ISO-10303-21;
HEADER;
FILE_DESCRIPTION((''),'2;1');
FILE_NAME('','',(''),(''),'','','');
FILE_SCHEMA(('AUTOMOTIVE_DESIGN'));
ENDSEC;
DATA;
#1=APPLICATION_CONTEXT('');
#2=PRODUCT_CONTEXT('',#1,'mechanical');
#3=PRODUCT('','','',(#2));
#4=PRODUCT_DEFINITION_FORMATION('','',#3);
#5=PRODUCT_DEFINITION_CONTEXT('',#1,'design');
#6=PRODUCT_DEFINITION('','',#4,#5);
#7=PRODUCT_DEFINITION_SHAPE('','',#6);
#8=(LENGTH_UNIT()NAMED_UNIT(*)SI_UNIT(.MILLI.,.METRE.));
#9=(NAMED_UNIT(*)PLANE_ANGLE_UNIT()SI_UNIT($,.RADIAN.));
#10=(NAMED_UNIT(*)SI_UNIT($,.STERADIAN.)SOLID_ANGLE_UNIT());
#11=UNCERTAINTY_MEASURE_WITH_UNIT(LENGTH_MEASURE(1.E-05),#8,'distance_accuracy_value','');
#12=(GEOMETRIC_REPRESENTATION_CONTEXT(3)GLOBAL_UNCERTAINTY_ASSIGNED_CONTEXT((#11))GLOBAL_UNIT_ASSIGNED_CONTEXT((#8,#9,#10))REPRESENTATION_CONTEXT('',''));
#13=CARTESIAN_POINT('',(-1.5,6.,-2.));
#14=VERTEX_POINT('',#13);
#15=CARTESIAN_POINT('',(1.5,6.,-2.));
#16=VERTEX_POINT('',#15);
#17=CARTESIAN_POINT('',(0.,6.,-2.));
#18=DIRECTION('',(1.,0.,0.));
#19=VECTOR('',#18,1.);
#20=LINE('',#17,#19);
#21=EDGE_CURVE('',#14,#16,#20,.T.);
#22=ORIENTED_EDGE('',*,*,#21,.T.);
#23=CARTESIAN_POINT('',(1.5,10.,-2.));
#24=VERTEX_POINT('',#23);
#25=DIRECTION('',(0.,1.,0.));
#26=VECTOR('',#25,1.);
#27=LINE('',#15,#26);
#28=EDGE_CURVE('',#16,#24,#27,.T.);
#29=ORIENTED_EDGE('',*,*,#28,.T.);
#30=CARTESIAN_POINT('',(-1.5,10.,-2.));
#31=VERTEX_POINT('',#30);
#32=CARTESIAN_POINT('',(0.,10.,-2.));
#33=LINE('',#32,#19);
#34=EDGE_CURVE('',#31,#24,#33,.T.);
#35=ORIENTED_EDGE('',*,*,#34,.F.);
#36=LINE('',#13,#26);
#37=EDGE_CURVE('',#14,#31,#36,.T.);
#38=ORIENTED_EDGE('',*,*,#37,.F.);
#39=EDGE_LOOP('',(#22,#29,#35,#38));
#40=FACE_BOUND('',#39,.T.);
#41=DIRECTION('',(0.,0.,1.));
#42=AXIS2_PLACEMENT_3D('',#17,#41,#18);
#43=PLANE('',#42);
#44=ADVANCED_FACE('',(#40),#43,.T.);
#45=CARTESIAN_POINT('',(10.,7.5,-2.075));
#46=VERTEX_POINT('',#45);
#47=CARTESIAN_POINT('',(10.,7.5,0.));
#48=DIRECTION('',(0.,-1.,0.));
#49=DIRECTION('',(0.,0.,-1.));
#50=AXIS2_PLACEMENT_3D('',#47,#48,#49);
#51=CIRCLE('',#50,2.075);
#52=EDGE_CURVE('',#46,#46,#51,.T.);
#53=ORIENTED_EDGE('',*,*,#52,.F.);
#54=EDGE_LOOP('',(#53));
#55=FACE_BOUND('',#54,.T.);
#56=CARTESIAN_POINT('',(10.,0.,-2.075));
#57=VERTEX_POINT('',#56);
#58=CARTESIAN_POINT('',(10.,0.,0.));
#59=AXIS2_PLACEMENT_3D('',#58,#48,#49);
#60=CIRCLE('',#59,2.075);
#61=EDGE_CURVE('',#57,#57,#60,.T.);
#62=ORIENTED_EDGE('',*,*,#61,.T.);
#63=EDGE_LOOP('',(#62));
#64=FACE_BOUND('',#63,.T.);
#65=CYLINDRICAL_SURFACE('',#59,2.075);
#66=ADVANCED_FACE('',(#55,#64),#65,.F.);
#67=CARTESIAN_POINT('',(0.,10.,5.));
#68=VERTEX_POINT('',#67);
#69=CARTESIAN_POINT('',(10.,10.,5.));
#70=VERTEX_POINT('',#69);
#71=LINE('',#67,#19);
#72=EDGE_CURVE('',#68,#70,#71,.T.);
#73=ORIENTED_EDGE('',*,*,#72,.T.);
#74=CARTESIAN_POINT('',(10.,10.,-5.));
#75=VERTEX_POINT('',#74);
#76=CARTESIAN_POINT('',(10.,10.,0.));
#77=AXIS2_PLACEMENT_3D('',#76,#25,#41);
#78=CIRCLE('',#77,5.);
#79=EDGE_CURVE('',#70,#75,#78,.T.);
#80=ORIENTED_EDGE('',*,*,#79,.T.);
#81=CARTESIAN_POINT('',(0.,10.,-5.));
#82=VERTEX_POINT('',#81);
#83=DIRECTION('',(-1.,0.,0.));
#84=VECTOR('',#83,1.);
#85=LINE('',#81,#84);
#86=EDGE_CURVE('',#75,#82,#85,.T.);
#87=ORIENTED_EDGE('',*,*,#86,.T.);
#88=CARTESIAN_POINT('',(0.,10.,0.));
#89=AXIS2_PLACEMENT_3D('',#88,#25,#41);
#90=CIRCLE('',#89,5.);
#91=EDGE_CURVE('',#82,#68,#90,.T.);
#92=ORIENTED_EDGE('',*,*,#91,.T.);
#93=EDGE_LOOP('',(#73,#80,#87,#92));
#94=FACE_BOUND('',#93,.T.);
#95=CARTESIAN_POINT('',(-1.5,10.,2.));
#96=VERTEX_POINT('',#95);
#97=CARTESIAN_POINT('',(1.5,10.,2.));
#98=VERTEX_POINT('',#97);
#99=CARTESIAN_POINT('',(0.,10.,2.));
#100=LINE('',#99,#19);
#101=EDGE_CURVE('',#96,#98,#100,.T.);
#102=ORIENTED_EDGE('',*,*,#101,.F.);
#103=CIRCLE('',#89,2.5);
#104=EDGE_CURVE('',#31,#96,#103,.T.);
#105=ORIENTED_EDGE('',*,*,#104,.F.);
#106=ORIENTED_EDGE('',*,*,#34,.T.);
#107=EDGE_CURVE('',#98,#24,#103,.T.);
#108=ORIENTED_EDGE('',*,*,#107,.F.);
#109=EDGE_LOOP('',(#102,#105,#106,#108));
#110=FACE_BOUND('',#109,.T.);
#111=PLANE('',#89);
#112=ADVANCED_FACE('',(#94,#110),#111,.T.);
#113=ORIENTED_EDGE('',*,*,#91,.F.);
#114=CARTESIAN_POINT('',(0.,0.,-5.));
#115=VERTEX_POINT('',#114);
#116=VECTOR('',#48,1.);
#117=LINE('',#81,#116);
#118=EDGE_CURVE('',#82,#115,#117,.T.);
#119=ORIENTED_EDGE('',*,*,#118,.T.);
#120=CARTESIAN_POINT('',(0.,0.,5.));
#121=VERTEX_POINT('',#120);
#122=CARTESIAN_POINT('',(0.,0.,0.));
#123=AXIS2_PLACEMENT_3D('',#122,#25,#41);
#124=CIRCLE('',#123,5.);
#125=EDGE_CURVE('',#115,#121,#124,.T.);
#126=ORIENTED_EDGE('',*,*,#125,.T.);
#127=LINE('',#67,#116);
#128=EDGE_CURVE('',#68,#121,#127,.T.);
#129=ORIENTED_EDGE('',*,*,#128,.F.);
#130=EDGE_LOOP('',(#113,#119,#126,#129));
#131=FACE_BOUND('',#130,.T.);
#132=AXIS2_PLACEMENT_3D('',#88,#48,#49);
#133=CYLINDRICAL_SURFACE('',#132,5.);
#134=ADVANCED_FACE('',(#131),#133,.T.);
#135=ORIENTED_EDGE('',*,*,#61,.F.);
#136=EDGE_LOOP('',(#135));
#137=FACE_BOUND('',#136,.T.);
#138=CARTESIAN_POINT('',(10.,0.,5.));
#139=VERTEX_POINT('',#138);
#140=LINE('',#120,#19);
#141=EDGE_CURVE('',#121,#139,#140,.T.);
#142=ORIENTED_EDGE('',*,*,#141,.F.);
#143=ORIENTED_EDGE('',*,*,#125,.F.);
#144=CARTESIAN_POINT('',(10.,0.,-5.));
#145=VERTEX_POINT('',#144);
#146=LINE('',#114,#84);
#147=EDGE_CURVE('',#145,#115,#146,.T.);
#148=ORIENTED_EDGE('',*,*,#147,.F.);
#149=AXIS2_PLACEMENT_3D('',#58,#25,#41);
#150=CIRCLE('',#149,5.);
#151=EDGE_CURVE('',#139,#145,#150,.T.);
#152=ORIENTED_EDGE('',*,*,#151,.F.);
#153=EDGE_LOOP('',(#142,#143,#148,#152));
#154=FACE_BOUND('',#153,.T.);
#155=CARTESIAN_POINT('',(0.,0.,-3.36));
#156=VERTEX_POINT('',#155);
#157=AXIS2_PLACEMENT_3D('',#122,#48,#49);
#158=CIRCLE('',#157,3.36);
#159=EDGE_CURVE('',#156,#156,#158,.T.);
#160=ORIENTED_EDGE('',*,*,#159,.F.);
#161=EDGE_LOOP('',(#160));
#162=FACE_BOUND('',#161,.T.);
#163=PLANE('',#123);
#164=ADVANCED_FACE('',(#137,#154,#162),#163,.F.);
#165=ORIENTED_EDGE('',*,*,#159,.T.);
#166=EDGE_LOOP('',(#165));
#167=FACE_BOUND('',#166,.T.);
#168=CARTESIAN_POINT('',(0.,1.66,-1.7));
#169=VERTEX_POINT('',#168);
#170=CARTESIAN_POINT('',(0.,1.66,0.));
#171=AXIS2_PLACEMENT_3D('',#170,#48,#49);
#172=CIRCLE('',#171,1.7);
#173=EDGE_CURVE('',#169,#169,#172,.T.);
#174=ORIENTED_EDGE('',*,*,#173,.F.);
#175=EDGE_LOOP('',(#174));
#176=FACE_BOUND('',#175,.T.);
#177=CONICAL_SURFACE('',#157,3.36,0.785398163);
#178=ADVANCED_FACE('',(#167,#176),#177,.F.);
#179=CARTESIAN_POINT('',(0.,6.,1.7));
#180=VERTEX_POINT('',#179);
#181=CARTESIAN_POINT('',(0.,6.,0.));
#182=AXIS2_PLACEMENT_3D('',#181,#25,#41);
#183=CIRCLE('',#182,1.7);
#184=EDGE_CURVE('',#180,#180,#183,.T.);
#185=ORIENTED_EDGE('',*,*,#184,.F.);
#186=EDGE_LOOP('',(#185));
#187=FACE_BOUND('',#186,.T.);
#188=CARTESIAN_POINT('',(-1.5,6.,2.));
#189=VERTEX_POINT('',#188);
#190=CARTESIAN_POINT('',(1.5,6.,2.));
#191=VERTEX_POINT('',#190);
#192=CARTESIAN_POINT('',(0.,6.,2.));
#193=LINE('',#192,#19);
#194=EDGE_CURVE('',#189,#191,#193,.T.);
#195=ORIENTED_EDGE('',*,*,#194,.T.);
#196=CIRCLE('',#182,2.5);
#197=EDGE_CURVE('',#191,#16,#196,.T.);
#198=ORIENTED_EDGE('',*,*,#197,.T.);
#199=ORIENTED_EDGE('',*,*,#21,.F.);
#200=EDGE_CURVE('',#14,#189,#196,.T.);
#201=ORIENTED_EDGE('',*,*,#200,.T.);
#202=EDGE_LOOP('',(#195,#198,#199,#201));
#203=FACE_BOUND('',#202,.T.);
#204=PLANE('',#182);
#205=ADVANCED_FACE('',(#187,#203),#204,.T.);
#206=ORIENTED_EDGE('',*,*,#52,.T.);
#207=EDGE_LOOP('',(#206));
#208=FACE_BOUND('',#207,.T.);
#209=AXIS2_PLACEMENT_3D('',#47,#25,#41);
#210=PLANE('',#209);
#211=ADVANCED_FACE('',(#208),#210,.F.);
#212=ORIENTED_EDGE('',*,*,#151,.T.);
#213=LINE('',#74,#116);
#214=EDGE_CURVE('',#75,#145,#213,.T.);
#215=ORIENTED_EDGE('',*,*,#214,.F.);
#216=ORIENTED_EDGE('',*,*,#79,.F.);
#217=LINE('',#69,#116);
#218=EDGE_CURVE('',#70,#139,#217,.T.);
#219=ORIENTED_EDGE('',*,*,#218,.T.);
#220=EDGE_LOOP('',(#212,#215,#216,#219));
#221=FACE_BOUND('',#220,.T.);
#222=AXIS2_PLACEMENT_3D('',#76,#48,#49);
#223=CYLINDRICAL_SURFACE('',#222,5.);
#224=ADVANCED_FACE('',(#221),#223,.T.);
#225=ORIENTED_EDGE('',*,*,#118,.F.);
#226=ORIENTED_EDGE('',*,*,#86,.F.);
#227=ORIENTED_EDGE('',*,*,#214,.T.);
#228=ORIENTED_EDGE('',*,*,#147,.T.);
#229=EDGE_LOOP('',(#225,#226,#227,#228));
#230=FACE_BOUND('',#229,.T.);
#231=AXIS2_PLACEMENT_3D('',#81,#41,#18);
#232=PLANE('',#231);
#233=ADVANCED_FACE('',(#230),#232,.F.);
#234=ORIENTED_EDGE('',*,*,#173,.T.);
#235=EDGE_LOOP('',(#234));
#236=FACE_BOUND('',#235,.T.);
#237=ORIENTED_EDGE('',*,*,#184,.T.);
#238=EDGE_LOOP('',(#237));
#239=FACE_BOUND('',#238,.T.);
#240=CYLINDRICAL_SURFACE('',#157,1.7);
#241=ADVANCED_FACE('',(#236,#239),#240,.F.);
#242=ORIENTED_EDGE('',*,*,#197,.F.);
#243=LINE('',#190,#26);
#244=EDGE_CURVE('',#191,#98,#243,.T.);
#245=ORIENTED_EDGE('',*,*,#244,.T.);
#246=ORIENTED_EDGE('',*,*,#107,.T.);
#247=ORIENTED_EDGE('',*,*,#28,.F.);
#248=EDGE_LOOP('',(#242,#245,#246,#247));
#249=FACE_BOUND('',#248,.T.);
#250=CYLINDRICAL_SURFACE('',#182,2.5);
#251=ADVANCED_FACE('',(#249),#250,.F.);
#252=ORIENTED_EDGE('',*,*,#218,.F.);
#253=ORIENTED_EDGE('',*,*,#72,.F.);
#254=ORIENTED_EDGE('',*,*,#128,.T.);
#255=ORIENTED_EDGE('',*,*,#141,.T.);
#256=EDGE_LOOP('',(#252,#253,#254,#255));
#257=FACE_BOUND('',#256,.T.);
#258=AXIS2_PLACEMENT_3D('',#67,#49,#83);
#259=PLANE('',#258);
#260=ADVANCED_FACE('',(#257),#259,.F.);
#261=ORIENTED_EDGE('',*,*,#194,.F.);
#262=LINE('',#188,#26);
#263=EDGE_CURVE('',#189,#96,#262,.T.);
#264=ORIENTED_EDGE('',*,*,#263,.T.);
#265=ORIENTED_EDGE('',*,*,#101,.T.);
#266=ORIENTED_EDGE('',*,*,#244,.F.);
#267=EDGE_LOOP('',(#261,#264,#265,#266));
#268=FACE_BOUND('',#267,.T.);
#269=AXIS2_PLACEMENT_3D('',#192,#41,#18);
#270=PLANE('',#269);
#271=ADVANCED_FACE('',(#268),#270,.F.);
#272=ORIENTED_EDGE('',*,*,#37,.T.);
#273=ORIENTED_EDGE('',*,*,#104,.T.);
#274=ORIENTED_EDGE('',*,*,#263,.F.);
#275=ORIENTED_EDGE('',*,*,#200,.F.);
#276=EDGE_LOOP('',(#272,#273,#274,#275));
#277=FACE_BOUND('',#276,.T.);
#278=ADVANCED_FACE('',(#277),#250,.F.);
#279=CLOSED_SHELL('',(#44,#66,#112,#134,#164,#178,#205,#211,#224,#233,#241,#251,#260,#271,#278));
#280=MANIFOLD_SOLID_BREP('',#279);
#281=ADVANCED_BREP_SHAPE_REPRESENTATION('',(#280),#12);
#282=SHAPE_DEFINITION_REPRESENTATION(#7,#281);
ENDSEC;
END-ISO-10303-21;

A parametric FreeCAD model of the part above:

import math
import FreeCAD as App
import Part
import Sketcher
from FreeCAD import Vector

doc = App.newDocument("Part")
params = doc.addObject("Spreadsheet::Sheet", "Params")
for row, (alias, value) in enumerate([
    ("sketch1_radius", "5 mm"),
    ("sketch1_width", "10 mm"),
    ("pad1_length", "10 mm"),
    ("sketch2_radius", "2.5 mm"),
    ("sketch2_width", "3 mm"),
    ("pocket1_length", "4 mm"),
    ("sketch3_diameter", "3.4 mm"),
    ("hole_diameter", "3.4 mm"),
    ("hole_depth", "8.1 mm"),
    ("hole_csink_diameter", "6.72 mm"),
    ("sketch4_diameter", "4.15 mm"),
    ("hole2_diameter", "4.15 mm"),
    ("hole2_depth", "7.5 mm"),
], start=1):
    params.set(f"A{row}", alias)
    params.set(f"B{row}", "=" + value)
    params.setAlias(f"B{row}", alias)

body = doc.addObject("PartDesign::Body", "Body")

# Sketch on XZ plane
sketch1 = body.newObject("Sketcher::SketchObject", "Sketch")
sketch1.AttachmentSupport = (doc.getObject("XZ_Plane"), [""])
sketch1.MapMode = "FlatFace"
sketch1.addGeometry([
    Part.LineSegment(Vector(10, -5, 0), Vector(0, -5, 0)),
    Part.ArcOfCircle(Part.Circle(Vector(0, 0, 0), Vector(0, 0, 1), 5), math.radians(90), math.radians(270)),
    Part.LineSegment(Vector(0, 5, 0), Vector(10, 5, 0)),
    Part.ArcOfCircle(Part.Circle(Vector(10, 0, 0), Vector(0, 0, 1), 5), math.radians(-90), math.radians(90)),
], False)
sketch1.addConstraint([
    Sketcher.Constraint("Tangent", 0, 2, 1, 2),
    Sketcher.Constraint("Tangent", 1, 1, 2, 1),
    Sketcher.Constraint("Tangent", 2, 2, 3, 2),
    Sketcher.Constraint("Tangent", 3, 1, 0, 1),
    Sketcher.Constraint("Horizontal", 0),
    Sketcher.Constraint("Horizontal", 2),
    Sketcher.Constraint("Coincident", 1, 3, -1, 1),
    Sketcher.Constraint("Radius", 1, 5.0),
    Sketcher.Constraint("DistanceX", 0, 2, 0, 1, 10.0),
])
sketch1.setExpression("Constraints[7]", "Params.sketch1_radius")
sketch1.setExpression("Constraints[8]", "Params.sketch1_width")
pad1 = body.newObject("PartDesign::Pad", "Pad")
pad1.Profile = sketch1
pad1.setExpression("Length", "Params.pad1_length")
pad1.Reversed = True

# Sketch on XZ plane
sketch2 = body.newObject("Sketcher::SketchObject", "Sketch001")
sketch2.AttachmentSupport = (doc.getObject("XZ_Plane"), [""])
sketch2.MapMode = "FlatFace"
sketch2.AttachmentOffset = App.Placement(Vector(0, 0, -10), App.Rotation())
sketch2.addGeometry([
    Part.LineSegment(Vector(1.5, -2, 0), Vector(-1.5, -2, 0)),  # 0
    Part.ArcOfCircle(Part.Circle(Vector(0, 0, 0), Vector(0, 0, 1), 2.5), math.radians(126.869898), math.radians(233.130102)),  # 1
    Part.LineSegment(Vector(-1.5, 2, 0), Vector(1.5, 2, 0)),  # 2
    Part.ArcOfCircle(Part.Circle(Vector(0, 0, 0), Vector(0, 0, 1), 2.5), math.radians(0), math.radians(53.130102)),  # 3
    Part.ArcOfCircle(Part.Circle(Vector(0, 0, 0), Vector(0, 0, 1), 2.5), math.radians(-53.130102), math.radians(0)),  # 4
], False)
sketch2.addConstraint([
    Sketcher.Constraint("Coincident", 0, 2, 1, 2),
    Sketcher.Constraint("Coincident", 1, 1, 2, 1),
    Sketcher.Constraint("Coincident", 2, 2, 3, 2),
    Sketcher.Constraint("Tangent", 3, 1, 4, 2),
    Sketcher.Constraint("Coincident", 4, 1, 0, 1),
    Sketcher.Constraint("Horizontal", 0),
    Sketcher.Constraint("Horizontal", 2),
    Sketcher.Constraint("Coincident", 1, 3, -1, 1),
    Sketcher.Constraint("Coincident", 3, 3, -1, 1),
    Sketcher.Constraint("Equal", 1, 3),
    Sketcher.Constraint("Equal", 3, 4),
    Sketcher.Constraint("PointOnObject", 3, 1, -1),
    Sketcher.Constraint("Vertical", 0, 2, 1, 1),
    Sketcher.Constraint("Radius", 1, 2.5),
    Sketcher.Constraint("DistanceX", 0, 2, 0, 1, 3.0),
])
sketch2.setExpression("Constraints[13]", "Params.sketch2_radius")
sketch2.setExpression("Constraints[14]", "Params.sketch2_width")
pocket1 = body.newObject("PartDesign::Pocket", "Pocket")
pocket1.Profile = sketch2
pocket1.setExpression("Length", "Params.pocket1_length")
pocket1.Reversed = True

# Sketch on XZ plane
sketch3 = body.newObject("Sketcher::SketchObject", "Sketch002")
sketch3.AttachmentSupport = (doc.getObject("XZ_Plane"), [""])
sketch3.MapMode = "FlatFace"
sketch3.addGeometry(Part.Circle(Vector(0, 0, 0), Vector(0, 0, 1), 1.7), False)
sketch3.addConstraint([
    Sketcher.Constraint("Coincident", 0, 3, -1, 1),
    Sketcher.Constraint("Diameter", 0, 3.4),
])
sketch3.setExpression("Constraints[1]", "Params.sketch3_diameter")
doc.recompute()
hole = body.newObject("PartDesign::Hole", "Hole")
hole.Profile = sketch3
hole.ThreadType = "None"
hole.setExpression("Diameter", "Params.hole_diameter")
hole.DepthType = "Dimension"
hole.setExpression("Depth", "Params.hole_depth")
hole.DrillPoint = "Angled"
hole.DrillPointAngle = 118
hole.HoleCutType = "Countersink"
hole.setExpression("HoleCutDiameter", "Params.hole_csink_diameter")
hole.HoleCutCountersinkAngle = 90

# Sketch on XZ plane
sketch4 = body.newObject("Sketcher::SketchObject", "Sketch003")
sketch4.AttachmentSupport = (doc.getObject("XZ_Plane"), [""])
sketch4.MapMode = "FlatFace"
sketch4.addGeometry(Part.Circle(Vector(10, 0, 0), Vector(0, 0, 1), 2.075), False)
sketch4.addConstraint([
    Sketcher.Constraint("PointOnObject", 0, 3, -1),
    Sketcher.Constraint("Diameter", 0, 4.15),
    Sketcher.Constraint("DistanceX", -1, 1, 0, 3, 10.0),
])
sketch4.setExpression("Constraints[1]", "Params.sketch4_diameter")
doc.recompute()
hole2 = body.newObject("PartDesign::Hole", "Hole001")
hole2.Profile = sketch4
hole2.ThreadType = "None"
hole2.setExpression("Diameter", "Params.hole2_diameter")
hole2.DepthType = "Dimension"
hole2.setExpression("Depth", "Params.hole2_depth")
hole2.DrillPoint = "Flat"

doc.recompute()
